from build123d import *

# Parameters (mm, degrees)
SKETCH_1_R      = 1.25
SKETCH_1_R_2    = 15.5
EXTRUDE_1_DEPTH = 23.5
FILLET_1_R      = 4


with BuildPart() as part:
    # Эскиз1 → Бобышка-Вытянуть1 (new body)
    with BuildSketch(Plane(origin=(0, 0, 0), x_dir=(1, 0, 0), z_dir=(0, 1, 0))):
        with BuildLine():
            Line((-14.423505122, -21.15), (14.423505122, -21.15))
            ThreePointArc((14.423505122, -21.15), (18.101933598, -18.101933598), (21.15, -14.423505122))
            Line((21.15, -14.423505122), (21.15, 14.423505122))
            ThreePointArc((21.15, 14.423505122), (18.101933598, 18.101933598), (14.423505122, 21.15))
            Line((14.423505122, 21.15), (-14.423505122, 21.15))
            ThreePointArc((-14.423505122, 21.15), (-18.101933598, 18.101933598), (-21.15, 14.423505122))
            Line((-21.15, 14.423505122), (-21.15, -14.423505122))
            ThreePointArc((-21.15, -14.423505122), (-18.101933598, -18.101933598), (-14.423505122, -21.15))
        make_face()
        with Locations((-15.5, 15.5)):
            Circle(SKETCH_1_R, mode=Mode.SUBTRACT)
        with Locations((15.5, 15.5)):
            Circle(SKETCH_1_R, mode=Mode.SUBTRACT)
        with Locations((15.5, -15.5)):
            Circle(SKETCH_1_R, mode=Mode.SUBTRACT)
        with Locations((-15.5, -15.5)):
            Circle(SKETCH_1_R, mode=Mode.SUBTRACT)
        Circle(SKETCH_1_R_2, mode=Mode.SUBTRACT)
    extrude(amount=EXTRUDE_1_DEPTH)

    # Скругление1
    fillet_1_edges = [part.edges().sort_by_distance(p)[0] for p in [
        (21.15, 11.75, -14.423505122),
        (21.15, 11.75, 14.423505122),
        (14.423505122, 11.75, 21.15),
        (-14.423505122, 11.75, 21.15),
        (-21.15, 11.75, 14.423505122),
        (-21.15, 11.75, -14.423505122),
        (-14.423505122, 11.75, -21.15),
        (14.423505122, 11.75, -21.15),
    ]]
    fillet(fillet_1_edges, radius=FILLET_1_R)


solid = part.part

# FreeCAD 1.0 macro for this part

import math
import FreeCAD as App
import Part
import Sketcher

V = App.Vector


def edges_at(feature, points):
    """Names of the edges that pass closest to the given points."""
    edges = feature.Shape.Edges
    near = lambda p: min(range(len(edges)), key=lambda i: edges[i].distToShape(Part.Vertex(*p))[0])
    return sorted({f"Edge{near(p) + 1}" for p in points})

doc = App.newDocument("Part")
params = doc.addObject("Spreadsheet::Sheet", "Params")
for row, (alias, value) in enumerate([
    ("sketch1_diameter", "31 mm"),
    ("sketch1_diameter2", "2.5 mm"),
    ("sketch1_radius", "25.6 mm"),
    ("pad1_length", "23.5 mm"),
    ("fillet_radius", "4 mm"),
], start=1):
    params.set(f"A{row}", alias)
    params.set(f"B{row}", "=" + value)
    params.setAlias(f"B{row}", alias)

body = doc.addObject("PartDesign::Body", "Body")

# Sketch on XZ plane
sketch1 = body.newObject("Sketcher::SketchObject", "Sketch")
sketch1.AttachmentSupport = (doc.getObject("XZ_Plane"), [""])
sketch1.MapMode = "FlatFace"
sketch1.addGeometry([
    Part.LineSegment(V(-14.4, 21.1, 0), V(14.4, 21.1, 0)),  # 0
    Part.ArcOfCircle(Part.Circle(V(0, 0, 0), V(0, 0, 1), 25.6), math.radians(34), math.radians(56)),  # 1
    Part.LineSegment(V(21.1, 14.4, 0), V(21.1, -14.4, 0)),  # 2
    Part.ArcOfCircle(Part.Circle(V(0, 0, 0), V(0, 0, 1), 25.6), math.radians(-56), math.radians(-34)),  # 3
    Part.LineSegment(V(14.4, -21.1, 0), V(-14.4, -21.1, 0)),  # 4
    Part.ArcOfCircle(Part.Circle(V(0, 0, 0), V(0, 0, 1), 25.6), math.radians(-146), math.radians(-124)),  # 5
    Part.LineSegment(V(-21.1, -14.4, 0), V(-21.1, 14.4, 0)),  # 6
    Part.ArcOfCircle(Part.Circle(V(0, 0, 0), V(0, 0, 1), 25.6), math.radians(124), math.radians(146)),  # 7
    Part.Circle(V(-15.5, 15.5, 0), V(0, 0, 1), 1.2),  # 8
    Part.Circle(V(15.5, 15.5, 0), V(0, 0, 1), 1.2),  # 9
    Part.Circle(V(-15.5, -15.5, 0), V(0, 0, 1), 1.2),  # 10
    Part.Circle(V(0, 0, 0), V(0, 0, 1), 15.5),  # 11
    Part.Circle(V(15.5, -15.5, 0), V(0, 0, 1), 1.2),  # 12
], False)
sketch1.addConstraint([
    Sketcher.Constraint("Coincident", 0, 2, 1, 2),
    Sketcher.Constraint("Coincident", 1, 1, 2, 1),
    Sketcher.Constraint("Coincident", 2, 2, 3, 2),
    Sketcher.Constraint("Coincident", 3, 1, 4, 1),
    Sketcher.Constraint("Coincident", 4, 2, 5, 2),
    Sketcher.Constraint("Coincident", 5, 1, 6, 1),
    Sketcher.Constraint("Coincident", 6, 2, 7, 2),
    Sketcher.Constraint("Coincident", 7, 1, 0, 1),
    Sketcher.Constraint("Horizontal", 0),
    Sketcher.Constraint("Vertical", 2),
    Sketcher.Constraint("Horizontal", 4),
    Sketcher.Constraint("Vertical", 6),
    Sketcher.Constraint("Coincident", 1, 3, -1, 1),
    Sketcher.Constraint("Coincident", 3, 3, -1, 1),
    Sketcher.Constraint("Coincident", 5, 3, -1, 1),
    Sketcher.Constraint("Coincident", 7, 3, -1, 1),
    Sketcher.Constraint("Coincident", 11, 3, -1, 1),
    Sketcher.Constraint("Equal", 1, 3),
    Sketcher.Constraint("Equal", 3, 5),
    Sketcher.Constraint("Equal", 5, 7),
    Sketcher.Constraint("Equal", 8, 9),
    Sketcher.Constraint("Equal", 9, 10),
    Sketcher.Constraint("Equal", 10, 12),
    Sketcher.Constraint("Symmetric", 9, 3, 10, 3, -1, 1),
    Sketcher.Constraint("Symmetric", 8, 3, 12, 3, -1, 1),
    Sketcher.Constraint("Symmetric", 8, 3, 9, 3, -2),
    Sketcher.Constraint("Horizontal", 2, 2, 5, 1),
    Sketcher.Constraint("Vertical", 0, 2, 3, 1),
    Sketcher.Constraint("Equal", 4, 2),
    Sketcher.Constraint("Diameter", 11, 31.0),
    Sketcher.Constraint("Diameter", 8, 2.5),
    Sketcher.Constraint("Radius", 1, 25.6),
    Sketcher.Constraint("DistanceX", 8, 3, 9, 3, 31.0),
    Sketcher.Constraint("DistanceY", 10, 3, 8, 3, 31.0),
    Sketcher.Constraint("DistanceY", -1, 1, 0, 2, 21.15),
])
sketch1.setExpression("Constraints[29]", "Params.sketch1_diameter")
sketch1.setExpression("Constraints[30]", "Params.sketch1_diameter2")
sketch1.setExpression("Constraints[31]", "Params.sketch1_radius")
pad1 = body.newObject("PartDesign::Pad", "Pad")
pad1.Profile = sketch1
pad1.setExpression("Length", "Params.pad1_length")
pad1.Reversed = True
doc.recompute()

fillet = body.newObject("PartDesign::Fillet", "Fillet")
fillet.Base = (pad1, edges_at(pad1, [
    (21.15, 11.75, -14.424),
    (21.15, 11.75, 14.424),
    (14.424, 11.75, 21.15),
    (-14.424, 11.75, 21.15),
    (-21.15, 11.75, 14.424),
    (-21.15, 11.75, -14.424),
    (-14.424, 11.75, -21.15),
    (14.424, 11.75, -21.15),
]))
fillet.setExpression("Radius", "Params.fillet_radius")

doc.recompute()
